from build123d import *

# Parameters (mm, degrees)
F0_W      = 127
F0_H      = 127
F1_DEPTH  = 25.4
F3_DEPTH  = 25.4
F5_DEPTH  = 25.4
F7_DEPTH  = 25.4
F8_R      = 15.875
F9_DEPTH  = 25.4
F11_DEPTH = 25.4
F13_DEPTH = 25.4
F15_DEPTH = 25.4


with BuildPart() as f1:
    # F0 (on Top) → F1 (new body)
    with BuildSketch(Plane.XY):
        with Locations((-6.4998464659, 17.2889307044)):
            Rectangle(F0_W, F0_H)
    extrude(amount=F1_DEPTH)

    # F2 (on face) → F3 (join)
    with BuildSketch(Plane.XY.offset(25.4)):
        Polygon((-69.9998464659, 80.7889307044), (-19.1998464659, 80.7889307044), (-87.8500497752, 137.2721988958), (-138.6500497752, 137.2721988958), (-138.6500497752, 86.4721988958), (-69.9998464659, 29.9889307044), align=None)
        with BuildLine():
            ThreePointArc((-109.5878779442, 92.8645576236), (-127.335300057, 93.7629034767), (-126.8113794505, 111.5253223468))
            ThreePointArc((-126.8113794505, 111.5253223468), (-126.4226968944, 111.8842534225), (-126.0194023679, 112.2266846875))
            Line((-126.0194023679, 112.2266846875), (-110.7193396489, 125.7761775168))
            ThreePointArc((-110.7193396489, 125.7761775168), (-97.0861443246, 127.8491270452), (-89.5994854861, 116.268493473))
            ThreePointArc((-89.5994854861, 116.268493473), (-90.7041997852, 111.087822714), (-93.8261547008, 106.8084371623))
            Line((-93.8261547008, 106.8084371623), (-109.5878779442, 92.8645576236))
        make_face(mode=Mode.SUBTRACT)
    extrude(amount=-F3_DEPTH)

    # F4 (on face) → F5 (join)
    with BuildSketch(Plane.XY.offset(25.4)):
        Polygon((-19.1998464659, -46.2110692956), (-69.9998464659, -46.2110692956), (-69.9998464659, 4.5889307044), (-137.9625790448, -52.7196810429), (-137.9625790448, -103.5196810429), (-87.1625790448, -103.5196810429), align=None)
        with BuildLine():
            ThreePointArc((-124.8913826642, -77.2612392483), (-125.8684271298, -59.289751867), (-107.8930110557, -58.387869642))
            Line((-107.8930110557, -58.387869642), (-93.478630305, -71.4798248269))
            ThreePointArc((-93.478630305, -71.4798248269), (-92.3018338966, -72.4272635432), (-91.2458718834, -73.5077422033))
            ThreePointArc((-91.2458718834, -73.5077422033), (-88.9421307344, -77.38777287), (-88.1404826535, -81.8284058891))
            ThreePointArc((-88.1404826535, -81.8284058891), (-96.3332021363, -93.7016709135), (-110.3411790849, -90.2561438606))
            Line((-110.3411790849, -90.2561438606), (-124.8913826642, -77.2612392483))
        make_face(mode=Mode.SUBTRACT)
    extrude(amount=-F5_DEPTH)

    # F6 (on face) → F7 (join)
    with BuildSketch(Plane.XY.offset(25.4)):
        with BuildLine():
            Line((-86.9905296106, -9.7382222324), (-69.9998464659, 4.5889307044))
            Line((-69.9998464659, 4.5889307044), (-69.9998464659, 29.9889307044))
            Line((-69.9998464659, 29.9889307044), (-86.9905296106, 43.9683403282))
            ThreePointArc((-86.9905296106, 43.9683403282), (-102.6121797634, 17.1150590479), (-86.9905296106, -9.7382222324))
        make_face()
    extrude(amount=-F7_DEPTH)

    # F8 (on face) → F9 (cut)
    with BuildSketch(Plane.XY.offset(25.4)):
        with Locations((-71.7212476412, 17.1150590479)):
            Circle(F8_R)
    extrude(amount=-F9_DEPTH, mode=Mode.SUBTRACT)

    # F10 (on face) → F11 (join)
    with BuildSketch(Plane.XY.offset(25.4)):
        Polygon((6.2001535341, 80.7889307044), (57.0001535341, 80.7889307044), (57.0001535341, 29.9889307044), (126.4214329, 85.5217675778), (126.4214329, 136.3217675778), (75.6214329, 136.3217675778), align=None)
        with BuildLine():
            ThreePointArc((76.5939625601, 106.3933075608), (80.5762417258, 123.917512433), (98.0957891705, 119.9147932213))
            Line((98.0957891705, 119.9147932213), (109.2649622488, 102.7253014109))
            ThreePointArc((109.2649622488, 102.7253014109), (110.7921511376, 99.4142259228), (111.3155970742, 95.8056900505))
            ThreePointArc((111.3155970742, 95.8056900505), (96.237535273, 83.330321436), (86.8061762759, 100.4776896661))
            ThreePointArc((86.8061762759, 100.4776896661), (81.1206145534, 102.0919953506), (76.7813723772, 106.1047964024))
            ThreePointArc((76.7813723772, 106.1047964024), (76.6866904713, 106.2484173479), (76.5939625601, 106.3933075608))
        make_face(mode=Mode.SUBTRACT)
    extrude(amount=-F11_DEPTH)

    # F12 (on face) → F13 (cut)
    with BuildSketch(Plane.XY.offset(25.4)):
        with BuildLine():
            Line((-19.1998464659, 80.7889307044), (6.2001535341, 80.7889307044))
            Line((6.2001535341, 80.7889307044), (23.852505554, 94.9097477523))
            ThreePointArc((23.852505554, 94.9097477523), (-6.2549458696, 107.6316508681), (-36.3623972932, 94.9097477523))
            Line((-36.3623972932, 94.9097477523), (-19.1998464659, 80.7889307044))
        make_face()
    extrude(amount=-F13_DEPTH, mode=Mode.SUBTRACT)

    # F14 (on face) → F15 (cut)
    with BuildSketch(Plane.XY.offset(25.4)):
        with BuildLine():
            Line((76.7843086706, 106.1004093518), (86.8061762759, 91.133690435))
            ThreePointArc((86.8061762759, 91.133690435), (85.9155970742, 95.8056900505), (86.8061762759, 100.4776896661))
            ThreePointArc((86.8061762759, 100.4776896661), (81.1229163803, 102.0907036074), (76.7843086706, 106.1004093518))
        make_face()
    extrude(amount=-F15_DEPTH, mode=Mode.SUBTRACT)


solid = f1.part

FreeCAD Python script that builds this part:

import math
import FreeCAD as App
import Part
import Sketcher

V = App.Vector
Q = App.Units.Quantity


def add_polygon(sketch, points):
    """Adds a closed chain of lines whose ends are joined by coincident constraints."""
    first, n = sketch.GeometryCount, len(points)
    for a, b in zip(points, points[1:] + points[:1]):
        sketch.addGeometry(Part.LineSegment(App.Vector(*a, 0), App.Vector(*b, 0)), False)
    for i in range(n):
        sketch.addConstraint(Sketcher.Constraint("Coincident", first + i, 2, first + (i + 1) % n, 1))

doc = App.newDocument("Part")
body = doc.addObject("PartDesign::Body", "Body")

sketch1 = body.newObject("Sketcher::SketchObject", "Sketch")
sketch1.AttachmentSupport = (doc.getObject("XY_Plane"), [""])
sketch1.MapMode = "FlatFace"
add_polygon(sketch1, [(-69.999846, 80.788931), (-69.999846, -46.211069), (57.000154, -46.211069), (57.000154, 80.788931)])
sketch1.addConstraint([
    Sketcher.Constraint("Vertical", 0),
    Sketcher.Constraint("Horizontal", 1),
    Sketcher.Constraint("Vertical", 2),
    Sketcher.Constraint("Horizontal", 3),
    Sketcher.Constraint("Equal", 3, 0),
    Sketcher.Constraint("DistanceX", 1, 1, 1, 2, Q("5 in")),
    Sketcher.Constraint("DistanceY", 0, 2, -1, 1, 46.211069),
    Sketcher.Constraint("DistanceX", 0, 2, -1, 1, 69.999846),
])
pad1 = body.newObject("PartDesign::Pad", "Pad")
pad1.Profile = sketch1
pad1.Length = Q("1 in")

sketch2 = body.newObject("Sketcher::SketchObject", "Sketch001")
sketch2.AttachmentSupport = (doc.getObject("XY_Plane"), [""])
sketch2.MapMode = "FlatFace"
sketch2.AttachmentOffset = App.Placement(V(0, 0, 1 * 25.4), App.Rotation())
add_polygon(sketch2, [(-69.999846, 80.788931), (-19.199846, 80.788931), (-87.85005, 137.272199), (-138.65005, 137.272199), (-138.65005, 86.472199), (-69.999846, 29.988931)])
sketch2.addGeometry(Part.LineSegment(V(-93.826155, 106.808437, 0), V(-109.587878, 92.864558, 0)), False)
sketch2.addGeometry(Part.ArcOfCircle(Part.Circle(V(-118.002843, 102.376569, 0), V(0, 0, 1), 12.7), math.radians(133.914612), math.radians(311.498134)), False)
sketch2.addGeometry(Part.ArcOfCircle(Part.Circle(V(-118.002843, 102.376569, 0), V(0, 0, 1), 12.7), math.radians(129.140571), math.radians(133.914612)), False)
sketch2.addGeometry(Part.LineSegment(V(-126.019402, 112.226685, 0), V(-110.71934, 125.776178, 0)), False)
sketch2.addGeometry(Part.ArcOfCircle(Part.Circle(V(-102.299485, 116.268493, 0), V(0, 0, 1), 12.7), math.radians(0), math.radians(131.527592)), False)
sketch2.addGeometry(Part.ArcOfCircle(Part.Circle(V(-102.299485, 116.268493, 0), V(0, 0, 1), 12.7), math.radians(-48.149336), math.radians(0)), False)
sketch2.addConstraint([
    Sketcher.Constraint("Tangent", 6, 2, 7, 2),
    Sketcher.Constraint("Tangent", 7, 1, 8, 2),
    Sketcher.Constraint("Coincident", 8, 1, 9, 1),
    Sketcher.Constraint("Tangent", 9, 2, 10, 2),
    Sketcher.Constraint("Tangent", 10, 1, 11, 2),
    Sketcher.Constraint("Coincident", 11, 1, 6, 1),
    Sketcher.Constraint("Horizontal", 0),
    Sketcher.Constraint("Horizontal", 2),
    Sketcher.Constraint("Vertical", 3),
    Sketcher.Constraint("Vertical", 5),
    Sketcher.Constraint("Equal", 7, 8),
    Sketcher.Constraint("Equal", 8, 10),
    Sketcher.Constraint("Equal", 10, 11),
    Sketcher.Constraint("Parallel", 1, 4),
    Sketcher.Constraint("Horizontal", 11, 3, 10, 1),
    Sketcher.Constraint("Equal", 0, 2),
    Sketcher.Constraint("Equal", 2, 3),
    Sketcher.Constraint("Radius", 7, Q("0.5 in")),
    Sketcher.Constraint("DistanceX", 0, 1, 0, 2, Q("2 in")),
    Sketcher.Constraint("Distance", 1, Q("3.5 in")),
    Sketcher.Constraint("DistanceY", 8, 3, 8, 1, Q("0.3877998 in")),
    Sketcher.Constraint("DistanceY", -1, 1, 1, 2, 137.272199),
    Sketcher.Constraint("DistanceX", 7, 1, 6, 2, 17.223502),
    Sketcher.Constraint("DistanceY", -1, 1, 7, 3, 102.376569),
    Sketcher.Constraint("DistanceY", -1, 1, 0, 2, 80.788931),
    Sketcher.Constraint("DistanceX", 1, 2, -1, 1, 87.85005),
    Sketcher.Constraint("DistanceX", 7, 1, -1, 1, 126.811379),
    Sketcher.Constraint("DistanceX", 9, 2, -1, 1, 110.71934),
    Sketcher.Constraint("DistanceX", 10, 3, 0, 2, 83.099639),
    Sketcher.Constraint("DistanceX", 11, 1, 10, 1, 4.226669),
])
pad2 = body.newObject("PartDesign::Pad", "Pad001")
pad2.Profile = sketch2
pad2.Length = Q("1 in")
pad2.Reversed = True

sketch3 = body.newObject("Sketcher::SketchObject", "Sketch002")
sketch3.AttachmentSupport = (doc.getObject("XY_Plane"), [""])
sketch3.MapMode = "FlatFace"
sketch3.AttachmentOffset = App.Placement(V(0, 0, 1 * 25.4), App.Rotation())
add_polygon(sketch3, [(-19.199846, -46.211069), (-69.999846, -46.211069), (-69.999846, 4.588931), (-137.962579, -52.719681), (-137.962579, -103.519681), (-87.162579, -103.519681)])
sketch3.addGeometry(Part.LineSegment(V(-110.341179, -90.256144, 0), V(-124.891383, -77.261239, 0)), False)
sketch3.addGeometry(Part.ArcOfCircle(Part.Circle(V(-116.43166, -67.789012, 0), V(0, 0, 1), 12.7), math.radians(47.752497), math.radians(228.231701)), False)
sketch3.addGeometry(Part.LineSegment(V(-107.893011, -58.38787, 0), V(-93.47863, -71.479825, 0)), False)
sketch3.addGeometry(Part.ArcOfCircle(Part.Circle(V(-100.840483, -81.828406, 0), V(0, 0, 1), 12.7), math.radians(40.932569), math.radians(54.572424)), False)
sketch3.addGeometry(Part.ArcOfCircle(Part.Circle(V(-100.840483, -81.828406, 0), V(0, 0, 1), 12.7), math.radians(0), math.radians(40.932569)), False)
sketch3.addGeometry(Part.ArcOfCircle(Part.Circle(V(-100.840483, -81.828406, 0), V(0, 0, 1), 12.7), math.radians(-138.424881), math.radians(0)), False)
sketch3.addConstraint([
    Sketcher.Constraint("Coincident", 6, 2, 7, 2),
    Sketcher.Constraint("Coincident", 7, 1, 8, 1),
    Sketcher.Constraint("Coincident", 8, 2, 9, 2),
    Sketcher.Constraint("Coincident", 9, 1, 10, 2),
    Sketcher.Constraint("Coincident", 10, 1, 11, 2),
    Sketcher.Constraint("Coincident", 11, 1, 6, 1),
    Sketcher.Constraint("Horizontal", 0),
    Sketcher.Constraint("Vertical", 1),
    Sketcher.Constraint("Vertical", 3),
    Sketcher.Constraint("Horizontal", 4),
    Sketcher.Constraint("Coincident", 10, 3, 9, 3),
    Sketcher.Constraint("Coincident", 11, 3, 9, 3),
    Sketcher.Constraint("Radius", 7, Q("0.5 in")),
    Sketcher.Constraint("Radius", 9, Q("0.5 in")),
    Sketcher.Constraint("DistanceX", 0, 2, 0, 1, Q("2 in")),
    Sketcher.Constraint("DistanceX", 4, 1, 4, 2, Q("2 in")),
    Sketcher.Constraint("DistanceY", 1, 1, 1, 2, Q("2 in")),
    Sketcher.Constraint("DistanceY", 3, 2, 3, 1, Q("2 in")),
    Sketcher.Constraint("Distance", 2, Q("3.5 in")),
    Sketcher.Constraint("DistanceX", 2, 2, 9, 3, Q("1.4614999 in")),
    Sketcher.Constraint("DistanceX", 6, 2, 9, 3, 24.0509),
    Sketcher.Constraint("DistanceX", 7, 3, -1, 1, 116.43166),
    Sketcher.Constraint("DistanceY", 7, 3, -1, 1, 67.789012),
    Sketcher.Constraint("DistanceY", 0, 2, -1, 1, 46.211069),
    Sketcher.Constraint("DistanceX", 2, 2, -1, 1, 137.962579),
    Sketcher.Constraint("DistanceY", 2, 2, -1, 1, 52.719681),
    Sketcher.Constraint("DistanceX", 7, 1, -1, 1, 107.893011),
    Sketcher.Constraint("DistanceX", 8, 2, -1, 1, 93.47863),
    Sketcher.Constraint("DistanceX", 9, 1, -1, 1, 91.245872),
    Sketcher.Constraint("DistanceX", 11, 1, -1, 1, 110.341179),
    Sketcher.Constraint("DistanceY", 10, 1, 8, 2, 10.348581),
    Sketcher.Constraint("DistanceY", 11, 1, 7, 3, 22.467132),
])
pad3 = body.newObject("PartDesign::Pad", "Pad002")
pad3.Profile = sketch3
pad3.Length = Q("1 in")
pad3.Reversed = True

sketch4 = body.newObject("Sketcher::SketchObject", "Sketch003")
sketch4.AttachmentSupport = (doc.getObject("XY_Plane"), [""])
sketch4.MapMode = "FlatFace"
sketch4.AttachmentOffset = App.Placement(V(0, 0, 1 * 25.4), App.Rotation())
sketch4.addGeometry([
    Part.LineSegment(V(-86.99053, -9.738222, 0), V(-69.999846, 4.588931, 0)),
    Part.LineSegment(V(-69.999846, 4.588931, 0), V(-69.999846, 29.988931, 0)),
    Part.LineSegment(V(-69.999846, 29.988931, 0), V(-86.99053, 43.96834, 0)),
    Part.ArcOfCircle(Part.Circle(V(-71.721248, 17.115059, 0), V(0, 0, 1), 30.890932), math.radians(119.623376), math.radians(240.376624)),
], False)
sketch4.addConstraint([
    Sketcher.Constraint("Coincident", 0, 2, 1, 1),
    Sketcher.Constraint("Coincident", 1, 2, 2, 1),
    Sketcher.Constraint("Coincident", 2, 2, 3, 1),
    Sketcher.Constraint("Coincident", 3, 2, 0, 1),
    Sketcher.Constraint("Vertical", 1),
    Sketcher.Constraint("Vertical", 2, 2, 3, 2),
    Sketcher.Constraint("DistanceY", 1, 1, 1, 2, Q("1 in")),
    Sketcher.Constraint("Distance", 0, Q("0.875 in")),
    Sketcher.Constraint("Radius", 3, 30.890932),
    Sketcher.Constraint("DistanceX", 3, 3, 0, 2, 1.721401),
    Sketcher.Constraint("DistanceY", -1, 1, 3, 3, 17.115059),
    Sketcher.Constraint("DistanceY", -1, 1, 0, 2, 4.588931),
    Sketcher.Constraint("DistanceX", 2, 2, -1, 1, 86.99053),
])
pad4 = body.newObject("PartDesign::Pad", "Pad003")
pad4.Profile = sketch4
pad4.Length = Q("1 in")
pad4.Reversed = True

sketch5 = body.newObject("Sketcher::SketchObject", "Sketch004")
sketch5.AttachmentSupport = (doc.getObject("XY_Plane"), [""])
sketch5.MapMode = "FlatFace"
sketch5.AttachmentOffset = App.Placement(V(0, 0, 1 * 25.4), App.Rotation())
sketch5.addGeometry(Part.Circle(V(-71.721248, 17.115059, 0), V(0, 0, 1), 15.875), False)
sketch5.addConstraint([
    Sketcher.Constraint("Diameter", 0, Q("1.25 in")),
    Sketcher.Constraint("DistanceY", -1, 1, 0, 3, 17.115059),
    Sketcher.Constraint("DistanceX", 0, 3, -1, 1, 71.721248),
])
pocket1 = body.newObject("PartDesign::Pocket", "Pocket")
pocket1.Profile = sketch5
pocket1.Length = Q("1 in")

sketch6 = body.newObject("Sketcher::SketchObject", "Sketch005")
sketch6.AttachmentSupport = (doc.getObject("XY_Plane"), [""])
sketch6.MapMode = "FlatFace"
sketch6.AttachmentOffset = App.Placement(V(0, 0, 1 * 25.4), App.Rotation())
add_polygon(sketch6, [(6.200154, 80.788931), (57.000154, 80.788931), (57.000154, 29.988931), (126.421433, 85.521768), (126.421433, 136.321768), (75.621433, 136.321768)])
sketch6.addGeometry(Part.ArcOfCircle(Part.Circle(V(87.336989, 113.166592, 0), V(0, 0, 1), 12.699999), math.radians(-147.769309), math.radians(-146.217148)), False)
sketch6.addGeometry(Part.ArcOfCircle(Part.Circle(V(87.336989, 113.166592, 0), V(0, 0, 1), 12.7), math.radians(32.097015), math.radians(212.230691)), False)
sketch6.addGeometry(Part.LineSegment(V(98.095789, 119.914793, 0), V(109.264962, 102.725301, 0)), False)
sketch6.addGeometry(Part.ArcOfCircle(Part.Circle(V(98.615597, 95.80569, 0), V(0, 0, 1), 12.7), math.radians(0), math.radians(33.014502)), False)
sketch6.addGeometry(Part.ArcOfCircle(Part.Circle(V(98.615597, 95.80569, 0), V(0, 0, 1), 12.7), math.radians(158.41544), math.radians(360)), False)
sketch6.addGeometry(Part.ArcOfCircle(Part.Circle(V(87.336989, 113.166592, 0), V(0, 0, 1), 12.7), math.radians(-146.217148), math.radians(-92.395449)), False)
sketch6.addConstraint([
    Sketcher.Constraint("Tangent", 6, 1, 7, 2),
    Sketcher.Constraint("Coincident", 7, 1, 8, 1),
    Sketcher.Constraint("Tangent", 8, 2, 9, 2),
    Sketcher.Constraint("Tangent", 9, 1, 10, 2),
    Sketcher.Constraint("Coincident", 10, 1, 11, 2),
    Sketcher.Constraint("Tangent", 11, 1, 6, 2),
    Sketcher.Constraint("Horizontal", 0),
    Sketcher.Constraint("Vertical", 1),
    Sketcher.Constraint("Vertical", 3),
    Sketcher.Constraint("Horizontal", 4),
    Sketcher.Constraint("Equal", 6, 7),
    Sketcher.Constraint("Equal", 7, 9),
    Sketcher.Constraint("Equal", 9, 10),
    Sketcher.Constraint("Equal", 10, 11),
    Sketcher.Constraint("Parallel", 2, 5),
    Sketcher.Constraint("Horizontal", 10, 3, 9, 1),
    Sketcher.Constraint("Equal", 0, 4),
    Sketcher.Constraint("Equal", 4, 1),
    Sketcher.Constraint("Radius", 6, Q("0.5 in")),
    Sketcher.Constraint("DistanceX", 0, 1, 0, 2, Q("2 in")),
    Sketcher.Constraint("Distance", 2, Q("3.5 in")),
    Sketcher.Constraint("DistanceY", 9, 3, 6, 3, Q("0.6835001 in")),
    Sketcher.Constraint("DistanceY", -1, 1, 8, 2, 102.725301),
    Sketcher.Constraint("DistanceX", 7, 3, 7, 1, 10.7588),
    Sketcher.Constraint("DistanceY", 10, 1, 6, 3, 12.688902),
    Sketcher.Constraint("DistanceX", -1, 1, 6, 3, 87.336989),
    Sketcher.Constraint("DistanceY", -1, 1, 0, 2, 80.788931),
    Sketcher.Constraint("DistanceX", 6, 1, 11, 1, 0.18741),
    Sketcher.Constraint("DistanceY", 11, 1, 6, 1, 0.288511),
    Sketcher.Constraint("DistanceX", -1, 1, 0, 2, 57.000154),
    Sketcher.Constraint("DistanceX", -1, 1, 2, 2, 126.421433),
])
pad5 = body.newObject("PartDesign::Pad", "Pad004")
pad5.Profile = sketch6
pad5.Length = Q("1 in")
pad5.Reversed = True

sketch7 = body.newObject("Sketcher::SketchObject", "Sketch006")
sketch7.AttachmentSupport = (doc.getObject("XY_Plane"), [""])
sketch7.MapMode = "FlatFace"
sketch7.AttachmentOffset = App.Placement(V(0, 0, 1 * 25.4), App.Rotation())
sketch7.addGeometry([
    Part.LineSegment(V(-19.199846, 80.788931, 0), V(6.200154, 80.788931, 0)),
    Part.LineSegment(V(6.200154, 80.788931, 0), V(23.852506, 94.909748, 0)),
    Part.ArcOfCircle(Part.Circle(V(-6.254946, 65.644794, 0), V(0, 0, 1), 41.986857), math.radians(44.187024), math.radians(135.812976)),
    Part.LineSegment(V(-36.362397, 94.909748, 0), V(-19.199846, 80.788931, 0)),
], False)
sketch7.addConstraint([
    Sketcher.Constraint("Coincident", 0, 2, 1, 1),
    Sketcher.Constraint("Coincident", 1, 2, 2, 1),
    Sketcher.Constraint("Coincident", 2, 2, 3, 1),
    Sketcher.Constraint("Coincident", 3, 2, 0, 1),
    Sketcher.Constraint("Horizontal", 0),
    Sketcher.Constraint("Horizontal", 1, 2, 2, 2),
    Sketcher.Constraint("DistanceX", 0, 1, 0, 2, Q("1 in")),
    Sketcher.Constraint("Distance", 3, Q("0.875 in")),
    Sketcher.Constraint("Radius", 2, 41.986857),
    Sketcher.Constraint("DistanceX", 2, 3, 0, 2, 12.455099),
    Sketcher.Constraint("DistanceY", -1, 1, 0, 2, 80.788931),
    Sketcher.Constraint("DistanceX", 2, 3, 1, 2, 30.107451),
    Sketcher.Constraint("DistanceX", 2, 3, -1, 1, 6.254946),
])
pocket2 = body.newObject("PartDesign::Pocket", "Pocket001")
pocket2.Profile = sketch7
pocket2.Length = Q("1 in")

sketch8 = body.newObject("Sketcher::SketchObject", "Sketch007")
sketch8.AttachmentSupport = (doc.getObject("XY_Plane"), [""])
sketch8.MapMode = "FlatFace"
sketch8.AttachmentOffset = App.Placement(V(0, 0, 1 * 25.4), App.Rotation())
sketch8.addGeometry([
    Part.LineSegment(V(76.784309, 106.100409, 0), V(86.806176, 91.13369, 0)),
    Part.ArcOfCircle(Part.Circle(V(98.615597, 95.80569, 0), V(0, 0, 1), 12.7), math.radians(158.41544), math.radians(201.58456)),
    Part.ArcOfCircle(Part.Circle(V(87.336989, 113.166592, 0), V(0, 0, 1), 12.7), math.radians(-146.193332), math.radians(-92.395449)),
], False)
sketch8.addConstraint([
    Sketcher.Constraint("Coincident", 0, 2, 1, 2),
    Sketcher.Constraint("Coincident", 1, 1, 2, 2),
    Sketcher.Constraint("Tangent", 2, 1, 0, 1),
    Sketcher.Constraint("Equal", 1, 2),
    Sketcher.Constraint("Vertical", 0, 2, 1, 1),
    Sketcher.Constraint("Radius", 1, Q("0.5 in")),
    Sketcher.Constraint("DistanceY", 1, 3, 2, 3, Q("0.6835001 in")),
    Sketcher.Constraint("DistanceY", 0, 2, 1, 3, 4.672),
    Sketcher.Constraint("DistanceY", -1, 1, 1, 3, 95.80569),
    Sketcher.Constraint("DistanceX", -1, 1, 2, 3, 87.336989),
])
pocket3 = body.newObject("PartDesign::Pocket", "Pocket002")
pocket3.Profile = sketch8
pocket3.Length = Q("1 in")

doc.recompute()
